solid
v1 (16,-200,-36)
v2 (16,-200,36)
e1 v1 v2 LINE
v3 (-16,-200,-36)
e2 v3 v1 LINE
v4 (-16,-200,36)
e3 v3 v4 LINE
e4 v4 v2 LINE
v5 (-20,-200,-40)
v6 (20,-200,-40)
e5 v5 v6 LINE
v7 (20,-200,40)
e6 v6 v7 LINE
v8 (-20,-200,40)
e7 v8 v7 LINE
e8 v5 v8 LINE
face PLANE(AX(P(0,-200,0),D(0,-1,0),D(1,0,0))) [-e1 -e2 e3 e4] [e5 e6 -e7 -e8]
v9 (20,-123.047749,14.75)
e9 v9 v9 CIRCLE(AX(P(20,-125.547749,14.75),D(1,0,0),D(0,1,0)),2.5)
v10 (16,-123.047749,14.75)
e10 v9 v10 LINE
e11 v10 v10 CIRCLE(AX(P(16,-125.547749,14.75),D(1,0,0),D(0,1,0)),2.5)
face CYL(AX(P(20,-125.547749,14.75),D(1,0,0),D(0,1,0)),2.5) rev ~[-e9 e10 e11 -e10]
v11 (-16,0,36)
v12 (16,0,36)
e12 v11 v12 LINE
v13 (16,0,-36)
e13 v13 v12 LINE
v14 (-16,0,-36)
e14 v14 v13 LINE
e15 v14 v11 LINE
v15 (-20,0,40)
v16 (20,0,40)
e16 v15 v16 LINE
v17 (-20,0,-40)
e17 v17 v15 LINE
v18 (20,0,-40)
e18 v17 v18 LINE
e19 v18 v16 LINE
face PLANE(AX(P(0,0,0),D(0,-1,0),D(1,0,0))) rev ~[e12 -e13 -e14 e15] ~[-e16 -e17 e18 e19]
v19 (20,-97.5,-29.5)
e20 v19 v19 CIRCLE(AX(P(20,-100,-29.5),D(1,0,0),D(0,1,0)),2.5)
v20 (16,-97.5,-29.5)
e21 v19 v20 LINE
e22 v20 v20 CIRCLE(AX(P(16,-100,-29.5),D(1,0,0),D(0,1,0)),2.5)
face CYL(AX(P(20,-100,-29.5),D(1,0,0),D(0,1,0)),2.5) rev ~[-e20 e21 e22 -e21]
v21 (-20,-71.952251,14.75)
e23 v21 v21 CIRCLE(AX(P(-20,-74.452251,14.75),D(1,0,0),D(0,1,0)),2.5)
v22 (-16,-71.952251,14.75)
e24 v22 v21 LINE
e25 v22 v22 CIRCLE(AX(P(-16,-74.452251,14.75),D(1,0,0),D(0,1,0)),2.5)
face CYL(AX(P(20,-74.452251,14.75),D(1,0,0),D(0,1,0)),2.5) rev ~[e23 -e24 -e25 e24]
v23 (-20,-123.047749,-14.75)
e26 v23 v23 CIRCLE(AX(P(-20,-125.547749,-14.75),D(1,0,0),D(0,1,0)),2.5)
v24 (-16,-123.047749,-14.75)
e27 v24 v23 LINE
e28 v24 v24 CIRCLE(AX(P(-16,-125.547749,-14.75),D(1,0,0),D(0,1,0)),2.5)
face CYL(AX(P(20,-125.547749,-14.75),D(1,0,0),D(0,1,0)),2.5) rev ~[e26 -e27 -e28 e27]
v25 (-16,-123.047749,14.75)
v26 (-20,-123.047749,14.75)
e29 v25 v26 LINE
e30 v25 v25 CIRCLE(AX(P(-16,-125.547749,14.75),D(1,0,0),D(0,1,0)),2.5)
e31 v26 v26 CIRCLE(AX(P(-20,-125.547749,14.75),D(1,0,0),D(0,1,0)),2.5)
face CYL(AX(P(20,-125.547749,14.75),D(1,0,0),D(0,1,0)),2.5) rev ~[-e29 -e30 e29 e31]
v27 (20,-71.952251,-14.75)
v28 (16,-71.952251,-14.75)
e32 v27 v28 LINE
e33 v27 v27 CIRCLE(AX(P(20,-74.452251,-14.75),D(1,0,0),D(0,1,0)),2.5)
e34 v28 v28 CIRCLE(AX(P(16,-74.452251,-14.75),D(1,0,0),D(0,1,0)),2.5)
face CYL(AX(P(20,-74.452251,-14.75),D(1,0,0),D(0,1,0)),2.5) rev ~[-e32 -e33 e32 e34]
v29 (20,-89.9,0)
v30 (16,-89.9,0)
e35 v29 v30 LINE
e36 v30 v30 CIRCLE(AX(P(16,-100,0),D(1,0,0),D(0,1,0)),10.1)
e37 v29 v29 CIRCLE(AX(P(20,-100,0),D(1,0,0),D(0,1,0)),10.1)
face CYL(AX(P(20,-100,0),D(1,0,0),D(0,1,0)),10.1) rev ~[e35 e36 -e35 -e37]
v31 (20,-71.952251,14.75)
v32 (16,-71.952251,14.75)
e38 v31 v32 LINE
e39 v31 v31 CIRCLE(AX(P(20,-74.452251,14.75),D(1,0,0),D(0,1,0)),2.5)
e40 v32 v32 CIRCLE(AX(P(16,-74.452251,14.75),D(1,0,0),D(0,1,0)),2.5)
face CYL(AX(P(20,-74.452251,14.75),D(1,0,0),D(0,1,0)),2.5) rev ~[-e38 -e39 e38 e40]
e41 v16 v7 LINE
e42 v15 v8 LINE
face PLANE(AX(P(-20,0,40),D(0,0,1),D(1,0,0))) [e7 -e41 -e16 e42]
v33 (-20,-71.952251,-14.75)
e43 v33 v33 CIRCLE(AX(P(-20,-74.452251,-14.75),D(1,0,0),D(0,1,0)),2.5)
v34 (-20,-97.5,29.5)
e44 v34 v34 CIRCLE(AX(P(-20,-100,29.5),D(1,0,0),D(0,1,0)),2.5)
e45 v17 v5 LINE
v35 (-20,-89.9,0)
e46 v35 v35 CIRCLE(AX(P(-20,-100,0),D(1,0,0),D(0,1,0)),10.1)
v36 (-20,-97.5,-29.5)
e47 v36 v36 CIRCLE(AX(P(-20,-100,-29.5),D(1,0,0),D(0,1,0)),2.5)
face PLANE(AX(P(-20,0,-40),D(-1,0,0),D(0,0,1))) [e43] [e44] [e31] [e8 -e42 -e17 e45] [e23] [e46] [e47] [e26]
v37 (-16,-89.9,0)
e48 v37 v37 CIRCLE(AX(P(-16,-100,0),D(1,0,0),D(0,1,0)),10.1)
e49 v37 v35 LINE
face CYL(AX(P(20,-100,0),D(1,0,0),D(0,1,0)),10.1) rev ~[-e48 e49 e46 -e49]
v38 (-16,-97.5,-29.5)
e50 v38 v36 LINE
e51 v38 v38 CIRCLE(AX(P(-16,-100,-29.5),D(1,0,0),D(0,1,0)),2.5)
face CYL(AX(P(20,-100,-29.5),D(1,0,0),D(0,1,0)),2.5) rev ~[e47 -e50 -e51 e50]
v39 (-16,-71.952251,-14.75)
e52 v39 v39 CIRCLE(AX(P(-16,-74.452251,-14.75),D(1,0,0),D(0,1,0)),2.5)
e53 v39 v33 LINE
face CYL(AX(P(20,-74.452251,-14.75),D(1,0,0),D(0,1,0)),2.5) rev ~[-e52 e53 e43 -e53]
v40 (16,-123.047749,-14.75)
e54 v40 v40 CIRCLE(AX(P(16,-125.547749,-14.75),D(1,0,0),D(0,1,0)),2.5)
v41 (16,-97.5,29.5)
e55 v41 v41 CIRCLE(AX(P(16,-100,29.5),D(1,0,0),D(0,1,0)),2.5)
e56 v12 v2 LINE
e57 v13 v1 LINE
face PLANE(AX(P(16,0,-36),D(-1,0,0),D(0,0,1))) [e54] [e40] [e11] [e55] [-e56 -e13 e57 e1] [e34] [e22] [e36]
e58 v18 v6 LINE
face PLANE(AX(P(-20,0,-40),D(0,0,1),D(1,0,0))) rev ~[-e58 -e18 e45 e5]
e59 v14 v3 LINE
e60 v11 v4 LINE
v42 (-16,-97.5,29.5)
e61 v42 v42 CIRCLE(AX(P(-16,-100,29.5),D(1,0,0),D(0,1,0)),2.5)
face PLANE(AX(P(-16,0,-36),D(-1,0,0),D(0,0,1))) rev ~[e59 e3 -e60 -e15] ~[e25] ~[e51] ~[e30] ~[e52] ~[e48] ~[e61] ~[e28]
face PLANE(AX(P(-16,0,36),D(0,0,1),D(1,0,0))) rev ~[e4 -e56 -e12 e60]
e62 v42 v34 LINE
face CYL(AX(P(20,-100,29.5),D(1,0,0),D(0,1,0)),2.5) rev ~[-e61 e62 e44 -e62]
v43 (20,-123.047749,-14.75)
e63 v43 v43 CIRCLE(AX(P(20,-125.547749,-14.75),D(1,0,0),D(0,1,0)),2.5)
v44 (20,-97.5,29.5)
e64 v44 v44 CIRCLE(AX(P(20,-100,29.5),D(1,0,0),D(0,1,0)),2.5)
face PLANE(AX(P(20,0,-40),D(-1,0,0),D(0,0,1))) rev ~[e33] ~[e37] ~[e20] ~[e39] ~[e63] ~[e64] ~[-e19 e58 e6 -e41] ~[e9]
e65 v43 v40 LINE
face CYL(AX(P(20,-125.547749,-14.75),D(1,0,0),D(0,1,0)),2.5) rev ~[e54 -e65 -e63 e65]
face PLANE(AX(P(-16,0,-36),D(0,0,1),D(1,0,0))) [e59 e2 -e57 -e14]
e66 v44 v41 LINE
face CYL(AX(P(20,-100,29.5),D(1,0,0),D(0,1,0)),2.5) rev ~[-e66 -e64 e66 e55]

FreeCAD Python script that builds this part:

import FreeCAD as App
import Part
import Sketcher
from FreeCAD import Vector
Q = App.Units.Quantity

doc = App.newDocument("Part")
body = doc.addObject("PartDesign::Body", "Body")

# Sketch on XZ plane
sketch1 = body.newObject("Sketcher::SketchObject", "Sketch")
sketch1.AttachmentSupport = (doc.getObject("XZ_Plane"), [""])
sketch1.MapMode = "FlatFace"
sketch1.addGeometry([
    Part.LineSegment(Vector(-20, 40, 0), Vector(-20, -40, 0)),  # 0
    Part.LineSegment(Vector(-20, -40, 0), Vector(20, -40, 0)),  # 1
    Part.LineSegment(Vector(20, -40, 0), Vector(20, 40, 0)),  # 2
    Part.LineSegment(Vector(20, 40, 0), Vector(-20, 40, 0)),  # 3
    Part.LineSegment(Vector(16, -36, 0), Vector(-16, -36, 0)),  # 4
    Part.LineSegment(Vector(-16, -36, 0), Vector(-16, 36, 0)),  # 5
    Part.LineSegment(Vector(-16, 36, 0), Vector(16, 36, 0)),  # 6
    Part.LineSegment(Vector(16, 36, 0), Vector(16, -36, 0)),  # 7
], False)
sketch1.addConstraint([
    Sketcher.Constraint("Coincident", 0, 2, 1, 1),
    Sketcher.Constraint("Coincident", 1, 2, 2, 1),
    Sketcher.Constraint("Coincident", 2, 2, 3, 1),
    Sketcher.Constraint("Coincident", 3, 2, 0, 1),
    Sketcher.Constraint("Coincident", 4, 2, 5, 1),
    Sketcher.Constraint("Coincident", 5, 2, 6, 1),
    Sketcher.Constraint("Coincident", 6, 2, 7, 1),
    Sketcher.Constraint("Coincident", 7, 2, 4, 1),
    Sketcher.Constraint("Vertical", 0),
    Sketcher.Constraint("Horizontal", 1),
    Sketcher.Constraint("Vertical", 2),
    Sketcher.Constraint("Horizontal", 3),
    Sketcher.Constraint("Horizontal", 4),
    Sketcher.Constraint("Vertical", 5),
    Sketcher.Constraint("Horizontal", 6),
    Sketcher.Constraint("Vertical", 7),
    Sketcher.Constraint("Symmetric", 0, 2, 2, 2, -1, 1),
    Sketcher.Constraint("Symmetric", 4, 2, 6, 2, -1, 1),
    Sketcher.Constraint("DistanceX", 1, 1, 1, 2, Q("40 mm")),
    Sketcher.Constraint("DistanceX", 4, 2, 4, 1, Q("32 mm")),
    Sketcher.Constraint("DistanceY", 0, 2, 0, 1, Q("80 mm")),
    Sketcher.Constraint("DistanceY", 5, 1, 5, 2, Q("72 mm")),
])
pad1 = body.newObject("PartDesign::Pad", "Pad")
pad1.Profile = sketch1
pad1.Length = 200

# Sketch on YZ plane
sketch2 = body.newObject("Sketcher::SketchObject", "Sketch001")
sketch2.AttachmentSupport = (doc.getObject("YZ_Plane"), [""])
sketch2.MapMode = "FlatFace"
sketch2.AttachmentOffset = App.Placement(Vector(0, 0, 20), App.Rotation())
sketch2.addGeometry(Part.Circle(Vector(-100, 0, 0), Vector(0, 0, 1), 10), False)
sketch2.addConstraint([
    Sketcher.Constraint("PointOnObject", 0, 3, -1),
    Sketcher.Constraint("Diameter", 0, Q("20.2 mm")),
    Sketcher.Constraint("DistanceX", 0, 3, -1, 1, Q("100 mm")),
])
pocket1 = body.newObject("PartDesign::Pocket", "Pocket")
pocket1.Profile = sketch2
pocket1.Type = "ThroughAll"

# Sketch on YZ plane
sketch3 = body.newObject("Sketcher::SketchObject", "Sketch002")
sketch3.AttachmentSupport = (doc.getObject("YZ_Plane"), [""])
sketch3.MapMode = "FlatFace"
sketch3.AttachmentOffset = App.Placement(Vector(0, 0, 20), App.Rotation())
sketch3.addGeometry([
    Part.Circle(Vector(-125.5, -14.8, 0), Vector(0, 0, 1), 2.5),  # 0
    Part.Circle(Vector(-125.5, 14.8, 0), Vector(0, 0, 1), 2.5),  # 1
    Part.Circle(Vector(-100, 29.5, 0), Vector(0, 0, 1), 2.5),  # 2
    Part.Circle(Vector(-74.5, 14.8, 0), Vector(0, 0, 1), 2.5),  # 3
    Part.Circle(Vector(-74.5, -14.8, 0), Vector(0, 0, 1), 2.5),  # 4
    Part.Circle(Vector(-100, -29.5, 0), Vector(0, 0, 1), 2.5),  # 5
], False)
sketch3.addConstraint([
    Sketcher.Constraint("Equal", 0, 1),
    Sketcher.Constraint("Equal", 1, 2),
    Sketcher.Constraint("Equal", 2, 3),
    Sketcher.Constraint("Equal", 3, 4),
    Sketcher.Constraint("Equal", 4, 5),
    Sketcher.Constraint("Symmetric", 0, 3, 1, 3, -1),
    Sketcher.Constraint("Symmetric", 3, 3, 4, 3, -1),
    Sketcher.Constraint("Symmetric", 2, 3, 5, 3, -1),
    Sketcher.Constraint("Horizontal", 1, 3, 3, 3),
    Sketcher.Constraint("Diameter", 0, Q("5 mm")),
    Sketcher.Constraint("DistanceX", 2, 3, -1, 1, Q("100 mm")),
    Sketcher.Constraint("DistanceY", 5, 3, 2, 3, Q("59 mm")),
    Sketcher.Constraint("DistanceY", 0, 3, 1, 3, Q("29.5 mm")),
    Sketcher.Constraint("DistanceX", 0, 3, -1, 1, Q("125.547749 mm")),
    Sketcher.Constraint("DistanceX", 3, 3, -1, 1, Q("74.452251 mm")),
])
pocket2 = body.newObject("PartDesign::Pocket", "Pocket001")
pocket2.Profile = sketch3
pocket2.Type = "ThroughAll"

doc.recompute()
